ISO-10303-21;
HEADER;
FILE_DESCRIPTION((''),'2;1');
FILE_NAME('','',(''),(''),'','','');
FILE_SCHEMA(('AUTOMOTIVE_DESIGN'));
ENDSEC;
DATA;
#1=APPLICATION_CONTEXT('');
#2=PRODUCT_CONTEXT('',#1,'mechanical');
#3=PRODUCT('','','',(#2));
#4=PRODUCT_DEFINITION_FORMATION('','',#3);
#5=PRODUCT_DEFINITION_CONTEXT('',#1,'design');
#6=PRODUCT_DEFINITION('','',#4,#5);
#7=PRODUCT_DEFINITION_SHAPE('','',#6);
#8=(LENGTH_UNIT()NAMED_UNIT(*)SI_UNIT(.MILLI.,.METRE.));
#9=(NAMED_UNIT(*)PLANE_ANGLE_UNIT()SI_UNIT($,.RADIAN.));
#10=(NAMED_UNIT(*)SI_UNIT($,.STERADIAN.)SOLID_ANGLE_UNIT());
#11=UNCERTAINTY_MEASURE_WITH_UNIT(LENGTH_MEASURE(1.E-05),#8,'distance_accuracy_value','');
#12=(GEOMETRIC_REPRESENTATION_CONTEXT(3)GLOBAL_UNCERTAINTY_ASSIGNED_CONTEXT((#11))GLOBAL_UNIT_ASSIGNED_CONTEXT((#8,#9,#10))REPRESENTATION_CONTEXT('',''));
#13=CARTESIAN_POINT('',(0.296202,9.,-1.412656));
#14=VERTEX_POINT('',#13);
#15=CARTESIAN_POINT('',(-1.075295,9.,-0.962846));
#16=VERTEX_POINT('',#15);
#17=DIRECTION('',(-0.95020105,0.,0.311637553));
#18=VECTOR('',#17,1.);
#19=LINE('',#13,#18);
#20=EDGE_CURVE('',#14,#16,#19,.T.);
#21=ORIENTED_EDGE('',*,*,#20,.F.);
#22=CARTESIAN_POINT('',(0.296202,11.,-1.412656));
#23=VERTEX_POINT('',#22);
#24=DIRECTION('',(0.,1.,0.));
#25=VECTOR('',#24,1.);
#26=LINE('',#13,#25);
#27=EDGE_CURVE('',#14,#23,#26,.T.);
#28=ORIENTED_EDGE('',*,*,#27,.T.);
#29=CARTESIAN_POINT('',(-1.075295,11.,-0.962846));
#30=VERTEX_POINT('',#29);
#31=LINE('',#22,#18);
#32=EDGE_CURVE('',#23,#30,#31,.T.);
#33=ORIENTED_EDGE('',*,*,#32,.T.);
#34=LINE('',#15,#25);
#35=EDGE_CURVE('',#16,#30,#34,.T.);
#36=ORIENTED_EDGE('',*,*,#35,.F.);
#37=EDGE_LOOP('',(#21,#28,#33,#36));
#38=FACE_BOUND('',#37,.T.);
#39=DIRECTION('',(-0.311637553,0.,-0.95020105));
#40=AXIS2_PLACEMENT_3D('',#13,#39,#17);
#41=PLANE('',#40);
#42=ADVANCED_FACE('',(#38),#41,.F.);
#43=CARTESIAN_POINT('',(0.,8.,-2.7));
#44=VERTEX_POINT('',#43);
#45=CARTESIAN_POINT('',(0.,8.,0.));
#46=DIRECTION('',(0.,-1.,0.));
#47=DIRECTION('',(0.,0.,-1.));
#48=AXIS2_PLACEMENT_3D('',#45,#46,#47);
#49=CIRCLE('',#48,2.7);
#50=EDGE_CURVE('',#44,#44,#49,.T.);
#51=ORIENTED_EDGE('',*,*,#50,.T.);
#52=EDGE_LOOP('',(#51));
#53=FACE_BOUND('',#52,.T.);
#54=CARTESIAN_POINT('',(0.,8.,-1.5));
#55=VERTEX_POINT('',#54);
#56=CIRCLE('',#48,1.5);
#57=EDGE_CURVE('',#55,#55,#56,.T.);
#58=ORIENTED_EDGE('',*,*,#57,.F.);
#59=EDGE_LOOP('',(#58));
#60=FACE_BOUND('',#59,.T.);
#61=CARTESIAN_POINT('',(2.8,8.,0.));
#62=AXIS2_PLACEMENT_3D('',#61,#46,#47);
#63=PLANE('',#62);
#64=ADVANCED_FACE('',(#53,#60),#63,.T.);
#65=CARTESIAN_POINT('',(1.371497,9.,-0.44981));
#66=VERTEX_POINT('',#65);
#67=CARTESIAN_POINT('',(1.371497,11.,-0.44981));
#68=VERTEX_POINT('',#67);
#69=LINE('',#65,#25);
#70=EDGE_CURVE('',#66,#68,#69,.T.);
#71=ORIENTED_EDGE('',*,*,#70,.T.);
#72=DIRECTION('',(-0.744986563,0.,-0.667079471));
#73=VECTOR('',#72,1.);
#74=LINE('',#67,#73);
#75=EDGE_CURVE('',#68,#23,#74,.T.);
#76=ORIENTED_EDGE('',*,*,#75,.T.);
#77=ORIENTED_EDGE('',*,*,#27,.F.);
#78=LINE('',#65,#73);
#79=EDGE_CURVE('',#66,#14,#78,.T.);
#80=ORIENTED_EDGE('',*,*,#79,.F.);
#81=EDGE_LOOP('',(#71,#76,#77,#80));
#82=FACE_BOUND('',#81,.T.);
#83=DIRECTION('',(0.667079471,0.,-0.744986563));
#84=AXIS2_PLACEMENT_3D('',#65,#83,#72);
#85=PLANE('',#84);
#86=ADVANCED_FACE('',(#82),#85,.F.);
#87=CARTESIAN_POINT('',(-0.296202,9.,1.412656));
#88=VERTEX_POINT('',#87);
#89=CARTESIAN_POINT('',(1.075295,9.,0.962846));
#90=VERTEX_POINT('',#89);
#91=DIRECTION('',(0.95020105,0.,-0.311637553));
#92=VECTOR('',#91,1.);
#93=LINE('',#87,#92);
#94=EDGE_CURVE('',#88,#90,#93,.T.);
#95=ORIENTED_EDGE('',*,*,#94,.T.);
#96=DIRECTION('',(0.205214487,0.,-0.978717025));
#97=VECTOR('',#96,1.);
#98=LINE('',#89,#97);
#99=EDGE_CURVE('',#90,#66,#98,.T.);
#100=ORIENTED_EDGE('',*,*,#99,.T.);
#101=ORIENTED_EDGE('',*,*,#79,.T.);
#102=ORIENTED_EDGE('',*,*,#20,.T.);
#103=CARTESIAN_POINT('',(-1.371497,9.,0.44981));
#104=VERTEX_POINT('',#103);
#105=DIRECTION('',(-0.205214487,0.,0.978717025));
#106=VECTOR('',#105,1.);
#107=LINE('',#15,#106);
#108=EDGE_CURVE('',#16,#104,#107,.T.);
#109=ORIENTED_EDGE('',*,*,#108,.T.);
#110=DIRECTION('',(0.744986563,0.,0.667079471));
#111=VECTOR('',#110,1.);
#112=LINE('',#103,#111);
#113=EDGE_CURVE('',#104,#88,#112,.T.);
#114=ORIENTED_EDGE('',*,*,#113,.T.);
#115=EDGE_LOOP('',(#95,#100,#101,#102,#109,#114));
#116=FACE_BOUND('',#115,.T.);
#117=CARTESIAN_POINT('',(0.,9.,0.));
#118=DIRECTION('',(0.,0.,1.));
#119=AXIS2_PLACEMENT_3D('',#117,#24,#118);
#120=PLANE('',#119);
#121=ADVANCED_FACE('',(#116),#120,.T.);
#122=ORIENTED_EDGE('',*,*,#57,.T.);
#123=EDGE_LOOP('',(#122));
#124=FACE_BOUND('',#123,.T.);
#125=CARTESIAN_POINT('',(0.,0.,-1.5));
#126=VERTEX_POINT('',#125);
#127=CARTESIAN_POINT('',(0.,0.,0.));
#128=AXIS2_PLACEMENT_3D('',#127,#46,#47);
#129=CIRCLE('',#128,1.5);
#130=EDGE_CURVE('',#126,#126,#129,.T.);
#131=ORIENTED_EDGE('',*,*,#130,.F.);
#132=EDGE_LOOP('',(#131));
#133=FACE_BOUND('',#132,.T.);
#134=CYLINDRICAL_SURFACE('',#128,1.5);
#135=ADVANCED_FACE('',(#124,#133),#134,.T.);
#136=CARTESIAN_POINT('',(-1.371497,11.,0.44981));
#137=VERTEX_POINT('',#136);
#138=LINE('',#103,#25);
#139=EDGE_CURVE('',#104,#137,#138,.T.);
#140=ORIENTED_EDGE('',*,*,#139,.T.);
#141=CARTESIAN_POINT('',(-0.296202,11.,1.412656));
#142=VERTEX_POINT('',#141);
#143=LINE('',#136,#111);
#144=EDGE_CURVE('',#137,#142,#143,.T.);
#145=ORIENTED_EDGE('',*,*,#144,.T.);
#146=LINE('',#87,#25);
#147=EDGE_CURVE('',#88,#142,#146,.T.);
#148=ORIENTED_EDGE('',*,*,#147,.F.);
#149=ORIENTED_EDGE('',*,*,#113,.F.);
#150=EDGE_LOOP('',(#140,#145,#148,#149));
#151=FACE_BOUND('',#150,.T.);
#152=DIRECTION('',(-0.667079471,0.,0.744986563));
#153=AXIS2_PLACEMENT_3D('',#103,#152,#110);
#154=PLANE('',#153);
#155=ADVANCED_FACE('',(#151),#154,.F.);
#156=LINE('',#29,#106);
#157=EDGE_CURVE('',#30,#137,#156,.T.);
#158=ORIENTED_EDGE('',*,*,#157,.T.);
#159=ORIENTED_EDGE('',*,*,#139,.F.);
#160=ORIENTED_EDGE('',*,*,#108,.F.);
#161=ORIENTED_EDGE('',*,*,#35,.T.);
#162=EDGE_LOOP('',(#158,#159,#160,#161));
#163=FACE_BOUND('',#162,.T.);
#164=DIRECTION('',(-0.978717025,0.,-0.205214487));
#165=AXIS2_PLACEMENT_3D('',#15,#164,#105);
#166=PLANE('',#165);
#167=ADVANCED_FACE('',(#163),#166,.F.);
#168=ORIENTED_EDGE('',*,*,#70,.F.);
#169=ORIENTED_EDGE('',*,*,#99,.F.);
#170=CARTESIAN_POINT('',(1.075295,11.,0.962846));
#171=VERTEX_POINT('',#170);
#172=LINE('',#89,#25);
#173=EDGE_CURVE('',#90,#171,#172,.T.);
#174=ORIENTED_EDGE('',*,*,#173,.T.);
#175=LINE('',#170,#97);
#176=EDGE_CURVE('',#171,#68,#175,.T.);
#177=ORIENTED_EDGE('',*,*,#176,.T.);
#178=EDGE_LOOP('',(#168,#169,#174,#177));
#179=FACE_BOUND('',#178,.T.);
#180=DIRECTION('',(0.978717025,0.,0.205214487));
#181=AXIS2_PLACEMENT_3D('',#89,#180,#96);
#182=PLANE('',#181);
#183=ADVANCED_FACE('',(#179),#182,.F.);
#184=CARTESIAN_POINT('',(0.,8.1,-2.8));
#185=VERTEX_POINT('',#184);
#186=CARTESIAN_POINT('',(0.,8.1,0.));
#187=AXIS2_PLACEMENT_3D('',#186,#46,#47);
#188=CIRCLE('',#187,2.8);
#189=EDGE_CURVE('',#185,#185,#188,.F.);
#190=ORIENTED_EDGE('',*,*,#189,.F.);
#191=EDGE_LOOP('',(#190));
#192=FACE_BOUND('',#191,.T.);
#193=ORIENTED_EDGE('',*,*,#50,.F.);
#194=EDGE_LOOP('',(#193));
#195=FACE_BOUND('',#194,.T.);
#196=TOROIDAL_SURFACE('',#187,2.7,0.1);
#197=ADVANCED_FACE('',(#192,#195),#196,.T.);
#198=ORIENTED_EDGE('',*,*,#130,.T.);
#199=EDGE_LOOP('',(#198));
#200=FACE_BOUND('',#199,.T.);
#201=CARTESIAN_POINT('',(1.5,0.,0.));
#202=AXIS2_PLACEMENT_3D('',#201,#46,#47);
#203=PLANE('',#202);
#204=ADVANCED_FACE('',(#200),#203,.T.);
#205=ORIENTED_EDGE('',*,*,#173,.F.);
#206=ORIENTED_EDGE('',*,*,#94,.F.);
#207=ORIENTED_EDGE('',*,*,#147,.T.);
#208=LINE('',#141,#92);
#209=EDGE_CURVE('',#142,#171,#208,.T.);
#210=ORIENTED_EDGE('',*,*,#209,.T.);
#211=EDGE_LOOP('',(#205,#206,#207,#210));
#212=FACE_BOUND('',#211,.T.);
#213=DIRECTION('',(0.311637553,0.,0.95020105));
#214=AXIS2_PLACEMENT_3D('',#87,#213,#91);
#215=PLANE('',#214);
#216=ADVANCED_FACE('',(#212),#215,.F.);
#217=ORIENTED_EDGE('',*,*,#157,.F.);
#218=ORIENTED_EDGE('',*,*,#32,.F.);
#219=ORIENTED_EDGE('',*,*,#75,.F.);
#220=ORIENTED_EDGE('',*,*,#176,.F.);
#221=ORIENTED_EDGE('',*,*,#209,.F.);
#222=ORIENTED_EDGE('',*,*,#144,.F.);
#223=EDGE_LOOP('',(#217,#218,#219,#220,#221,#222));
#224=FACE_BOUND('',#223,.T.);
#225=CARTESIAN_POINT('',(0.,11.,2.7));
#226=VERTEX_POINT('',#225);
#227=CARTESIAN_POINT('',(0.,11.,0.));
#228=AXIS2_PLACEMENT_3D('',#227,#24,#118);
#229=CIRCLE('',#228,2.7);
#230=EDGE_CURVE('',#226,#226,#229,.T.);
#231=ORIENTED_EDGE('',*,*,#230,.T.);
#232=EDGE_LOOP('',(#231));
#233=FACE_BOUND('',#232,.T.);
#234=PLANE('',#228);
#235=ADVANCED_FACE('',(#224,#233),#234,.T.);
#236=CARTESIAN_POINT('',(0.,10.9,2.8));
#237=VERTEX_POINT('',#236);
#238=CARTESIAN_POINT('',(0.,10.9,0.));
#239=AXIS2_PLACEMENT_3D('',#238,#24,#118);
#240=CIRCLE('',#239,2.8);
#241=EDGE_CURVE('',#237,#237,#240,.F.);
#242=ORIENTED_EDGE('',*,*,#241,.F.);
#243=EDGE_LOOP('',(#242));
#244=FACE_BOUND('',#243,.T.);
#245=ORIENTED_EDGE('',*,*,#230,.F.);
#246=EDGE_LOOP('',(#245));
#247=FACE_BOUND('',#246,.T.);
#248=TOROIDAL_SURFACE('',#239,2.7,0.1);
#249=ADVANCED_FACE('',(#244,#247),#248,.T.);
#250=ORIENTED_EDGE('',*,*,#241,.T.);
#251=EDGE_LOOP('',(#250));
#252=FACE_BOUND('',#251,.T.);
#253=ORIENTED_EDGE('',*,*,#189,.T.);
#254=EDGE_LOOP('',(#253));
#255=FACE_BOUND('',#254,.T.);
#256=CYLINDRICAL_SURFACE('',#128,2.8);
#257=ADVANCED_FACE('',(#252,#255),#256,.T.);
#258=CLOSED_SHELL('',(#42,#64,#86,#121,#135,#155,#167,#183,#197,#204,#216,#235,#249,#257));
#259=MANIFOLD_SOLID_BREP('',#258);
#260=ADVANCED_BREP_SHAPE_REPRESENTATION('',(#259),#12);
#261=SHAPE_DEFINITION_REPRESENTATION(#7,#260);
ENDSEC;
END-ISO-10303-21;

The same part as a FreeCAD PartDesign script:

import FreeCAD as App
import Part
import Sketcher

V = App.Vector
Q = App.Units.Quantity


def edges_at(feature, points):
    """Names of the edges that pass closest to the given points."""
    edges = feature.Shape.Edges
    near = lambda p: min(range(len(edges)), key=lambda i: edges[i].distToShape(Part.Vertex(*p))[0])
    return sorted({f"Edge{near(p) + 1}" for p in points})

doc = App.newDocument("Part")
body = doc.addObject("PartDesign::Body", "Body")

sketch1 = body.newObject("Sketcher::SketchObject", "Sketch")
sketch1.AttachmentSupport = (doc.getObject("XY_Plane"), [""])
sketch1.MapMode = "FlatFace"
sketch1.addGeometry([
    Part.LineSegment(V(0, 11, 0), V(0, 0, 0)),
    Part.LineSegment(V(0, 0, 0), V(1.5, 0, 0)),
    Part.LineSegment(V(1.5, 0, 0), V(1.5, 8, 0)),
    Part.LineSegment(V(1.5, 8, 0), V(2.8, 8, 0)),
    Part.LineSegment(V(2.8, 8, 0), V(2.8, 11, 0)),
    Part.LineSegment(V(2.8, 11, 0), V(0, 11, 0)),
], False)
sketch1.addConstraint([
    Sketcher.Constraint("Coincident", 0, 2, 1, 1),
    Sketcher.Constraint("Coincident", 1, 2, 2, 1),
    Sketcher.Constraint("Coincident", 2, 2, 3, 1),
    Sketcher.Constraint("Coincident", 3, 2, 4, 1),
    Sketcher.Constraint("Coincident", 4, 2, 5, 1),
    Sketcher.Constraint("Coincident", 5, 2, 0, 1),
    Sketcher.Constraint("Vertical", 0),
    Sketcher.Constraint("Horizontal", 1),
    Sketcher.Constraint("Vertical", 2),
    Sketcher.Constraint("Horizontal", 3),
    Sketcher.Constraint("Vertical", 4),
    Sketcher.Constraint("Horizontal", 5),
    Sketcher.Constraint("Coincident", 0, 2, -1, 1),
    Sketcher.Constraint("DistanceY", 0, 2, 0, 1, Q("11 mm")),
    Sketcher.Constraint("DistanceY", 2, 1, 2, 2, Q("8 mm")),
    Sketcher.Constraint("DistanceX", 1, 1, 1, 2, Q("1.5 mm")),
    Sketcher.Constraint("DistanceX", 3, 1, 3, 2, Q("1.3 mm")),
])
revolution = body.newObject("PartDesign::Revolution", "Revolution")
revolution.Profile = sketch1
revolution.ReferenceAxis = (sketch1, ["V_Axis"])
revolution.Angle = 360

sketch2 = body.newObject("Sketcher::SketchObject", "Sketch001")
sketch2.AttachmentSupport = (doc.getObject("XZ_Plane"), [""])
sketch2.MapMode = "FlatFace"
sketch2.AttachmentOffset = App.Placement(V(0, 0, -11), App.Rotation())
sketch2.addGeometry([
    Part.LineSegment(V(1.1, 1, 0), V(1.4, -0.4, 0)),
    Part.LineSegment(V(1.4, -0.4, 0), V(0.3, -1.4, 0)),
    Part.LineSegment(V(0.3, -1.4, 0), V(-1.1, -1, 0)),
    Part.LineSegment(V(-1.1, -1, 0), V(-1.4, 0.4, 0)),
    Part.LineSegment(V(-1.4, 0.4, 0), V(-0.3, 1.4, 0)),
    Part.LineSegment(V(-0.3, 1.4, 0), V(1.1, 1, 0)),
], False)
sketch2.addConstraint([
    Sketcher.Constraint("Coincident", 0, 2, 1, 1),
    Sketcher.Constraint("Coincident", 1, 2, 2, 1),
    Sketcher.Constraint("Coincident", 2, 2, 3, 1),
    Sketcher.Constraint("Coincident", 3, 2, 4, 1),
    Sketcher.Constraint("Coincident", 4, 2, 5, 1),
    Sketcher.Constraint("Coincident", 5, 2, 0, 1),
    Sketcher.Constraint("Symmetric", 0, 2, 3, 2, -1, 1),
    Sketcher.Constraint("Symmetric", 1, 2, 4, 2, -1, 1),
    Sketcher.Constraint("Symmetric", 2, 2, 5, 2, -1, 1),
    Sketcher.Constraint("Equal", 0, 1),
    Sketcher.Constraint("Equal", 1, 2),
    Sketcher.Constraint("DistanceX", -1, 1, 1, 2, Q("0.296202 mm")),
    Sketcher.Constraint("DistanceX", 3, 2, 2, 2, Q("0.296202 mm")),
    Sketcher.Constraint("DistanceX", 3, 2, 1, 2, Q("1.667699 mm")),
    Sketcher.Constraint("DistanceY", 0, 2, -1, 1, Q("0.44981 mm")),
])
pocket1 = body.newObject("PartDesign::Pocket", "Pocket")
pocket1.Profile = sketch2
pocket1.Length = 2
pocket1.Reversed = True
doc.recompute()

fillet = body.newObject("PartDesign::Fillet", "Fillet")
fillet.Base = (pocket1, edges_at(pocket1, [(0, 8, 2.8), (0, 11, 2.8)]))
fillet.Radius = 0.1

doc.recompute()
